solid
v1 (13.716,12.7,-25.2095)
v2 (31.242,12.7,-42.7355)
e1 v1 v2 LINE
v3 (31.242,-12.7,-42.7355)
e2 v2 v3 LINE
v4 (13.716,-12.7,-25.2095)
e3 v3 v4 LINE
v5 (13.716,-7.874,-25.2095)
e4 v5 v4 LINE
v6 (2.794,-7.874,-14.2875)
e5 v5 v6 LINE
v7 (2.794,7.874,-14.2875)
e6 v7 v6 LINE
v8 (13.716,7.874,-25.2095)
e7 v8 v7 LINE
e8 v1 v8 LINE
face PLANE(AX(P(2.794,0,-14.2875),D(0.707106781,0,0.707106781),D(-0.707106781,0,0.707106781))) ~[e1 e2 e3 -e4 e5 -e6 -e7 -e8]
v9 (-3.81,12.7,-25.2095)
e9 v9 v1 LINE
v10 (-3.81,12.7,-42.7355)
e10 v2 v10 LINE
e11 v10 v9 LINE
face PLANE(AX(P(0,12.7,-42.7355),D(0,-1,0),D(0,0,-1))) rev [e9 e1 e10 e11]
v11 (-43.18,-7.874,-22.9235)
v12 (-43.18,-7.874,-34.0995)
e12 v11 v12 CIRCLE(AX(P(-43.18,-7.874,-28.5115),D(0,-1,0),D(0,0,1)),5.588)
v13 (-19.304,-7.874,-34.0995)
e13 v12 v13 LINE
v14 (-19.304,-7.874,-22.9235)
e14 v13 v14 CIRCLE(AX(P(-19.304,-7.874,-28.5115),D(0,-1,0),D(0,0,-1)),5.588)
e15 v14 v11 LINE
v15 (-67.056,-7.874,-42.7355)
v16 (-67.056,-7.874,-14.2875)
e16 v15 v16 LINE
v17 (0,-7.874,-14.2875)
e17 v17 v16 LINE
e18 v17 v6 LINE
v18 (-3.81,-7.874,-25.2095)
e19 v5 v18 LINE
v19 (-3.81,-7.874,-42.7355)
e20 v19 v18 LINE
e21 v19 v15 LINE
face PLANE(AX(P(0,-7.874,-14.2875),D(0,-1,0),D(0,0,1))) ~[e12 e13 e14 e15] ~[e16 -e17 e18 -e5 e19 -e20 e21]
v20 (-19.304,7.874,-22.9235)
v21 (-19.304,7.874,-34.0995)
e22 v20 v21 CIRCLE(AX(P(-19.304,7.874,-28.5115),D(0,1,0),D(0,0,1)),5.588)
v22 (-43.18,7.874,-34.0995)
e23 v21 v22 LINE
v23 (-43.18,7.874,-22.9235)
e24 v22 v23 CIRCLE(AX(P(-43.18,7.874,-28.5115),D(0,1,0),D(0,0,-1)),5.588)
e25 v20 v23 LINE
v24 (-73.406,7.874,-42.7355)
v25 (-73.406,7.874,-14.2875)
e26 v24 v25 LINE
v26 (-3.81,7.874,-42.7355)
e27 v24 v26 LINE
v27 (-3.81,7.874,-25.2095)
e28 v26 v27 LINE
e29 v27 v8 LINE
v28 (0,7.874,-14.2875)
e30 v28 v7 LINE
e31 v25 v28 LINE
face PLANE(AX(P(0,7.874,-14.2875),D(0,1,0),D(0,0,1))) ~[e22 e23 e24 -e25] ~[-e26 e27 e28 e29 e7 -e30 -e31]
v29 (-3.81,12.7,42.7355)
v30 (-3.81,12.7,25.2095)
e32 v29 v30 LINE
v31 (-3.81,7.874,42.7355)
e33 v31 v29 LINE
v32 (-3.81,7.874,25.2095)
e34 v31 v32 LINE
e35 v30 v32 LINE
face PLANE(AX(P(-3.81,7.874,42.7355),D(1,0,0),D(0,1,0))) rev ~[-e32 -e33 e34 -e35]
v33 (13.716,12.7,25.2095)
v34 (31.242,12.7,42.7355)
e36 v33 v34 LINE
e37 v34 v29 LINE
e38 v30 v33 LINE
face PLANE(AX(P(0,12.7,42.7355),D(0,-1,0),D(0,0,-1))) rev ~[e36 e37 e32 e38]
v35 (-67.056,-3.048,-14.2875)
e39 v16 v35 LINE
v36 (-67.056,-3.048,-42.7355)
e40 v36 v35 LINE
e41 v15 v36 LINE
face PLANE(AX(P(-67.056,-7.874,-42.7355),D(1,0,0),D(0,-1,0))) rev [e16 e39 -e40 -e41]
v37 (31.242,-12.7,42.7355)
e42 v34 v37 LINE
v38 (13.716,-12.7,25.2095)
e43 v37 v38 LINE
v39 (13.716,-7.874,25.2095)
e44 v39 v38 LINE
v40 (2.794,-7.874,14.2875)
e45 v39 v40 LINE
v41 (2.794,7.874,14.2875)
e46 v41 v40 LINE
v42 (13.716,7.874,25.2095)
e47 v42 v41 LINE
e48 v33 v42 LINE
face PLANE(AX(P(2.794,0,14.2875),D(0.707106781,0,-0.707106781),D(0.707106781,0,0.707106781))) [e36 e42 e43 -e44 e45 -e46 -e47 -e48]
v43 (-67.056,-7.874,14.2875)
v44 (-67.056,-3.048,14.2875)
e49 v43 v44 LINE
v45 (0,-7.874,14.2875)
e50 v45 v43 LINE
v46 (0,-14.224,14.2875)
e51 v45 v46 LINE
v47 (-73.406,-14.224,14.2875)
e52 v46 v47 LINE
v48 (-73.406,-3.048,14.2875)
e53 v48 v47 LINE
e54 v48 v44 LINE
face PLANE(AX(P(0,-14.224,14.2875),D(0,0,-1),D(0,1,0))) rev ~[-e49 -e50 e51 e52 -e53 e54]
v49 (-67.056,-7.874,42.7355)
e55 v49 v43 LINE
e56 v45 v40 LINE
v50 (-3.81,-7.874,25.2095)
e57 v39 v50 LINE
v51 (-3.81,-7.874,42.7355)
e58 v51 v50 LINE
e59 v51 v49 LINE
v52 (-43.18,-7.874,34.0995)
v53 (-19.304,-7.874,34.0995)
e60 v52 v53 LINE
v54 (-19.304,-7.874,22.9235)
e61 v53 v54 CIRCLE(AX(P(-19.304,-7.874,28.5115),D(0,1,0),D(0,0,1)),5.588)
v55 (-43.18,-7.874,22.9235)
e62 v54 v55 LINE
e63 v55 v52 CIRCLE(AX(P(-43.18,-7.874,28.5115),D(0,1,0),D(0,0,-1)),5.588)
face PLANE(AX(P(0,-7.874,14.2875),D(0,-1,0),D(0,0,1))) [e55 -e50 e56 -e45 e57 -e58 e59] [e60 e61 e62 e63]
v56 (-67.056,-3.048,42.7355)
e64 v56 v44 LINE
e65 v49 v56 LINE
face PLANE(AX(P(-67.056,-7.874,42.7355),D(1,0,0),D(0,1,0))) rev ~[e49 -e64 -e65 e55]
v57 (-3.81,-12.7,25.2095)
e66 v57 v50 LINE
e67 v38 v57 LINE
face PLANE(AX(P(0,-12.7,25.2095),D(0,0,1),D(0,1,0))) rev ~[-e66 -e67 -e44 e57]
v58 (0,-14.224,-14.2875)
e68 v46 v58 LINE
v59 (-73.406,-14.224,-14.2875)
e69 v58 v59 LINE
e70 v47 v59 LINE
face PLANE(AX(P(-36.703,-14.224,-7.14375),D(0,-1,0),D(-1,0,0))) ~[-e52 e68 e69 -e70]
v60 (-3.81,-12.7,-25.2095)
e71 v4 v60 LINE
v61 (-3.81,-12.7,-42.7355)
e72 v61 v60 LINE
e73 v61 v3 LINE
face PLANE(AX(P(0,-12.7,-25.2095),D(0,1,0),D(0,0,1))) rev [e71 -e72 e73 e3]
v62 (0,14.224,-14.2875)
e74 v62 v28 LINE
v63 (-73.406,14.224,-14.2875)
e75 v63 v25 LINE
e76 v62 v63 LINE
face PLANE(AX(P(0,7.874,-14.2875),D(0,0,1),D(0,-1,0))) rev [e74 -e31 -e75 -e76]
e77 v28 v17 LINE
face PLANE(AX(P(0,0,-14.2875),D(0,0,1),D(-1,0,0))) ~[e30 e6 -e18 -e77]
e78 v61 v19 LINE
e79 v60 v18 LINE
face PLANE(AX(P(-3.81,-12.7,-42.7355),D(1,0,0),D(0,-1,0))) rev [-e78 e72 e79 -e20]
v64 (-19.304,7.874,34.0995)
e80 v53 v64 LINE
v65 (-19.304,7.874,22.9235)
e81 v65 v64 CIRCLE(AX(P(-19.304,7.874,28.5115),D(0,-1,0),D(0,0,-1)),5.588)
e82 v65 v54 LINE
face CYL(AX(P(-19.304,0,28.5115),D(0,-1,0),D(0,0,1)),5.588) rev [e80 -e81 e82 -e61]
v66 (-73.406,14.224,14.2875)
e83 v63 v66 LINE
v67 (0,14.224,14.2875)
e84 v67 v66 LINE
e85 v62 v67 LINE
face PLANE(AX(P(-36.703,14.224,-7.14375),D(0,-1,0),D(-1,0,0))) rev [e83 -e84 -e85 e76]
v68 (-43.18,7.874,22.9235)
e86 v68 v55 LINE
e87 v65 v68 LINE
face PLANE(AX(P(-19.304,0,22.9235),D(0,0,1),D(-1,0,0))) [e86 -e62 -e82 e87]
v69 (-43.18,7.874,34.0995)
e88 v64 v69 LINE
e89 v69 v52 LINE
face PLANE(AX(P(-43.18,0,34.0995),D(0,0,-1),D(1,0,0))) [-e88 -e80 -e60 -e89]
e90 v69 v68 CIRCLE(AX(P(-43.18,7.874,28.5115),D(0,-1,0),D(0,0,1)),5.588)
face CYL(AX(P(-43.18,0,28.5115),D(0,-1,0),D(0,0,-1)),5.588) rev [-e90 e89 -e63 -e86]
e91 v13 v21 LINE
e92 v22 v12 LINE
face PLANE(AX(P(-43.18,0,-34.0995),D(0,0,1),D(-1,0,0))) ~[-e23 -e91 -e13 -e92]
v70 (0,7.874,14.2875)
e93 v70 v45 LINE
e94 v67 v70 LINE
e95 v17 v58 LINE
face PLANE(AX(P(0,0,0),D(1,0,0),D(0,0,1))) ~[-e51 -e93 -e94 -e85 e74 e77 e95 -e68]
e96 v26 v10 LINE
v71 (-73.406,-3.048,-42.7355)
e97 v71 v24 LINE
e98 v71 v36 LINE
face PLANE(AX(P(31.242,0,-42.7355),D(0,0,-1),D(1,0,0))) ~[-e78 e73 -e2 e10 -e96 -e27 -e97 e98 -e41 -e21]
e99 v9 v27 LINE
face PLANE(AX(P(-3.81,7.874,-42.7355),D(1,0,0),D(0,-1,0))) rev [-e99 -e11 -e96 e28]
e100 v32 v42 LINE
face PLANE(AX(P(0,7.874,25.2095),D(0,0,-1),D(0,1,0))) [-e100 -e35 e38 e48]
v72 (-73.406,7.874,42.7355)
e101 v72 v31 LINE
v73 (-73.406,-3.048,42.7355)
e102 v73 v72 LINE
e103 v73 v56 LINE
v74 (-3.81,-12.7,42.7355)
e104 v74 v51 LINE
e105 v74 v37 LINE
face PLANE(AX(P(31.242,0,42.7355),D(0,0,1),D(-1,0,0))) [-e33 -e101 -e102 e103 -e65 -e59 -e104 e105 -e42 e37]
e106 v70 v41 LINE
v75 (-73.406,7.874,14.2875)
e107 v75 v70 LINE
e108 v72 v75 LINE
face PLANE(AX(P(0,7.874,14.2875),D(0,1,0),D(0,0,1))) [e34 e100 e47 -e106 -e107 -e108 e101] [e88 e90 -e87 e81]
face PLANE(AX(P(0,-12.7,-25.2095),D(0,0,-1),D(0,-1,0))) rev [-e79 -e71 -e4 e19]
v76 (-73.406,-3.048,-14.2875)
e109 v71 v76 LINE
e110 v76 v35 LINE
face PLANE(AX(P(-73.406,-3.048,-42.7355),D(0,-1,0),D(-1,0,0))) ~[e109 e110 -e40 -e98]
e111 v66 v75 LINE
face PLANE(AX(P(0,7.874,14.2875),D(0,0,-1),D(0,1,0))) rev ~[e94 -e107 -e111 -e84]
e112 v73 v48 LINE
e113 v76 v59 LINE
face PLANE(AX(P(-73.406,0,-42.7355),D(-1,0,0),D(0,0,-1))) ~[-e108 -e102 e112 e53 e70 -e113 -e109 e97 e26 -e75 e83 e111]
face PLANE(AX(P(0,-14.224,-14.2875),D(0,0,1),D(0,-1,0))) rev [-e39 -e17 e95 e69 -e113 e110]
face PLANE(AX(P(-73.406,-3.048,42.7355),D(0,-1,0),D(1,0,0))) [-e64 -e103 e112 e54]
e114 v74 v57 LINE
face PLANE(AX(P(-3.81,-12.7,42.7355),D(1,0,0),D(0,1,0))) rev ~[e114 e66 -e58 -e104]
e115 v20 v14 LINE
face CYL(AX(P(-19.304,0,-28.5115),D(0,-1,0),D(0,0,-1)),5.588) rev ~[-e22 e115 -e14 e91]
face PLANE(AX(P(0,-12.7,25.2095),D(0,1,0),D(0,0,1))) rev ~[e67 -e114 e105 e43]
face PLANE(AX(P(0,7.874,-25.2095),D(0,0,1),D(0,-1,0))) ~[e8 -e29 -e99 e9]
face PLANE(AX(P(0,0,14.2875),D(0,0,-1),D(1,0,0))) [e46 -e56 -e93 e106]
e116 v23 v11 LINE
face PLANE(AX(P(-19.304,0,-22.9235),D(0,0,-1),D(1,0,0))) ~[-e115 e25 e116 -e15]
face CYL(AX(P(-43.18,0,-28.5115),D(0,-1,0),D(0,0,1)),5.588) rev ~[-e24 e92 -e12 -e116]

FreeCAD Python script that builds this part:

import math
import FreeCAD as App
import Part
import Sketcher
from FreeCAD import Vector
Q = App.Units.Quantity


def add_polygon(sketch, points):
    """Adds a closed chain of lines whose ends are joined by coincident constraints."""
    first, n = sketch.GeometryCount, len(points)
    for a, b in zip(points, points[1:] + points[:1]):
        sketch.addGeometry(Part.LineSegment(App.Vector(*a, 0), App.Vector(*b, 0)), False)
    for i in range(n):
        sketch.addConstraint(Sketcher.Constraint("Coincident", first + i, 2, first + (i + 1) % n, 1))

doc = App.newDocument("Part")
body = doc.addObject("PartDesign::Body", "Body")

sketch1 = body.newObject("Sketcher::SketchObject", "Sketch")
sketch1.AttachmentSupport = (doc.getObject("XZ_Plane"), [""])
sketch1.MapMode = "FlatFace"
add_polygon(sketch1, [(0, 0), (0, 14.3), (2.8, 14.3), (31.2, 42.7), (-73.4, 42.7), (-73.4, 0)])
sketch1.addGeometry(Part.ArcOfCircle(Part.Circle(Vector(-19.3, 28.5, 0), Vector(0, 0, 1), 5.6), math.radians(-90), math.radians(90)), False)
sketch1.addGeometry(Part.LineSegment(Vector(-19.3, 22.9, 0), Vector(-43.2, 22.9, 0)), False)
sketch1.addGeometry(Part.ArcOfCircle(Part.Circle(Vector(-43.2, 28.5, 0), Vector(0, 0, 1), 5.6), math.radians(90), math.radians(270)), False)
sketch1.addGeometry(Part.LineSegment(Vector(-43.2, 34.1, 0), Vector(-19.3, 34.1, 0)), False)
sketch1.addConstraint(Sketcher.Constraint("Tangent", 6, 1, 7, 1))
sketch1.addConstraint(Sketcher.Constraint("Tangent", 7, 2, 8, 2))
sketch1.addConstraint(Sketcher.Constraint("Tangent", 8, 1, 9, 1))
sketch1.addConstraint(Sketcher.Constraint("Tangent", 9, 2, 6, 2))
sketch1.addConstraint(Sketcher.Constraint("Vertical", 0))
sketch1.addConstraint(Sketcher.Constraint("Horizontal", 1))
sketch1.addConstraint(Sketcher.Constraint("Horizontal", 3))
sketch1.addConstraint(Sketcher.Constraint("Vertical", 4))
sketch1.addConstraint(Sketcher.Constraint("Horizontal", 5))
sketch1.addConstraint(Sketcher.Constraint("Horizontal", 7))
sketch1.addConstraint(Sketcher.Constraint("Horizontal", 9))
sketch1.addConstraint(Sketcher.Constraint("Coincident", 5, 2, -1, 1))
sketch1.addConstraint(Sketcher.Constraint("Radius", 6, Q("0.22 in")))
sketch1.addConstraint(Sketcher.Constraint("Angle", 2, Q("45 deg")))
sketch1.addConstraint(Sketcher.Constraint("DistanceX", 3, 2, 1, 2, Q("3 in")))
sketch1.addConstraint(Sketcher.Constraint("DistanceX", 1, 1, 1, 2, Q("0.11 in")))
sketch1.addConstraint(Sketcher.Constraint("DistanceX", 3, 2, 3, 1, Q("4.12 in")))
sketch1.addConstraint(Sketcher.Constraint("DistanceX", 7, 2, 7, 1, Q("0.94 in")))
sketch1.addConstraint(Sketcher.Constraint("DistanceX", 8, 3, -1, 1, Q("1.7 in")))
sketch1.addConstraint(Sketcher.Constraint("DistanceY", 0, 1, 0, 2, Q("0.5625 in")))
sketch1.addConstraint(Sketcher.Constraint("DistanceY", 0, 2, 6, 3, Q("0.56 in")))
pad1 = body.newObject("PartDesign::Pad", "Pad")
pad1.Profile = sketch1
pad1.Length = Q("1.12 in")
pad1.Midplane = True

sketch2 = body.newObject("Sketcher::SketchObject", "Sketch001")
sketch2.AttachmentSupport = (doc.getObject("YZ_Plane"), [""])
sketch2.MapMode = "FlatFace"
add_polygon(sketch2, [(-14.2, 42.7), (-14.2, 14.3), (-7.9, 14.3), (-7.9, 25.2), (-12.7, 25.2), (-12.7, 42.7)])
add_polygon(sketch2, [(14.2, 14.3), (14.2, 42.7), (12.7, 42.7), (12.7, 25.2), (7.9, 25.2), (7.9, 14.3)])
sketch2.addConstraint(Sketcher.Constraint("Vertical", 0))
sketch2.addConstraint(Sketcher.Constraint("Horizontal", 1))
sketch2.addConstraint(Sketcher.Constraint("Vertical", 2))
sketch2.addConstraint(Sketcher.Constraint("Horizontal", 3))
sketch2.addConstraint(Sketcher.Constraint("Vertical", 4))
sketch2.addConstraint(Sketcher.Constraint("Horizontal", 5))
sketch2.addConstraint(Sketcher.Constraint("Vertical", 6))
sketch2.addConstraint(Sketcher.Constraint("Horizontal", 7))
sketch2.addConstraint(Sketcher.Constraint("Vertical", 8))
sketch2.addConstraint(Sketcher.Constraint("Horizontal", 9))
sketch2.addConstraint(Sketcher.Constraint("Vertical", 10))
sketch2.addConstraint(Sketcher.Constraint("Horizontal", 11))
sketch2.addConstraint(Sketcher.Constraint("Symmetric", 5, 2, 6, 2, -2))
sketch2.addConstraint(Sketcher.Constraint("Symmetric", 3, 2, 8, 2, -2))
sketch2.addConstraint(Sketcher.Constraint("Symmetric", 1, 2, 10, 2, -2))
sketch2.addConstraint(Sketcher.Constraint("DistanceX", 4, 2, 7, 2, Q("1 in")))
sketch2.addConstraint(Sketcher.Constraint("DistanceX", 1, 1, 1, 2, Q("0.25 in")))
sketch2.addConstraint(Sketcher.Constraint("DistanceX", 3, 2, 3, 1, Q("0.19 in")))
sketch2.addConstraint(Sketcher.Constraint("DistanceY", 0, 2, 0, 1, Q("1.12 in")))
sketch2.addConstraint(Sketcher.Constraint("DistanceY", 2, 1, 2, 2, Q("0.43 in")))
sketch2.addConstraint(Sketcher.Constraint("DistanceY", -1, 1, 0, 2, Q("0.5625 in")))
pocket1 = body.newObject("PartDesign::Pocket", "Pocket")
pocket1.Profile = sketch2
pocket1.Type = "ThroughAll"
pocket1.Midplane = True

sketch3 = body.newObject("Sketcher::SketchObject", "Sketch002")
sketch3.AttachmentSupport = (doc.getObject("XY_Plane"), [""])
sketch3.MapMode = "FlatFace"
sketch3.AttachmentOffset = App.Placement(Vector(0, 0, 1.6825 * 25.4), App.Rotation())
add_polygon(sketch3, [(-73.4, 14.2), (-73.4, 7.9), (-3.8, 7.9), (-3.8, 12.7), (0, 12.7), (0, 14.2)])
add_polygon(sketch3, [(0, -14.2), (0, -12.7), (-3.8, -12.7), (-3.8, -7.9), (-67.1, -7.9), (-67.1, -3), (-73.4, -3), (-73.4, -14.2)])
sketch3.addConstraint(Sketcher.Constraint("Vertical", 0))
sketch3.addConstraint(Sketcher.Constraint("Horizontal", 1))
sketch3.addConstraint(Sketcher.Constraint("Vertical", 2))
sketch3.addConstraint(Sketcher.Constraint("Horizontal", 3))
sketch3.addConstraint(Sketcher.Constraint("Vertical", 4))
sketch3.addConstraint(Sketcher.Constraint("Horizontal", 5))
sketch3.addConstraint(Sketcher.Constraint("Vertical", 6))
sketch3.addConstraint(Sketcher.Constraint("Horizontal", 7))
sketch3.addConstraint(Sketcher.Constraint("Vertical", 8))
sketch3.addConstraint(Sketcher.Constraint("Horizontal", 9))
sketch3.addConstraint(Sketcher.Constraint("Vertical", 10))
sketch3.addConstraint(Sketcher.Constraint("Horizontal", 11))
sketch3.addConstraint(Sketcher.Constraint("Vertical", 12))
sketch3.addConstraint(Sketcher.Constraint("Horizontal", 13))
sketch3.addConstraint(Sketcher.Constraint("Symmetric", 3, 2, 6, 2, -1, 1))
sketch3.addConstraint(Sketcher.Constraint("Symmetric", 1, 2, 8, 2, -1))
sketch3.addConstraint(Sketcher.Constraint("Symmetric", 5, 2, 12, 2, -1))
sketch3.addConstraint(Sketcher.Constraint("PointOnObject", 3, 2, -2))
sketch3.addConstraint(Sketcher.Constraint("Equal", 11, 0))
sketch3.addConstraint(Sketcher.Constraint("Equal", 8, 10))
sketch3.addConstraint(Sketcher.Constraint("DistanceY", 6, 2, 3, 2, Q("1 in")))
sketch3.addConstraint(Sketcher.Constraint("DistanceX", 1, 1, 1, 2, Q("2.74 in")))
sketch3.addConstraint(Sketcher.Constraint("DistanceX", 3, 1, 3, 2, Q("0.15 in")))
sketch3.addConstraint(Sketcher.Constraint("DistanceX", 9, 2, 9, 1, Q("2.49 in")))
sketch3.addConstraint(Sketcher.Constraint("DistanceY", 2, 1, 2, 2, Q("0.19 in")))
pocket2 = body.newObject("PartDesign::Pocket", "Pocket001")
pocket2.Profile = sketch3
pocket2.Length = Q("1.12 in")
body2 = doc.addObject("PartDesign::Body", "Body001")
doc.recompute()

body2.BaseFeature = body
doc.recompute()

mirroring = doc.addObject("Part::Mirroring", "Mirroring")
mirroring.Source = body
mirroring.Base = Vector(0, 0, 0)
mirroring.Normal = Vector(0, 0, 1)
body3 = doc.addObject("PartDesign::Body", "Body002")
body3.BaseFeature = mirroring
boolean = body2.newObject("PartDesign::Boolean", "Boolean")
boolean.Type = "Fuse"
boolean.addObjects([body3])
doc.recompute()
mirroring.Visibility = False

doc.recompute()
